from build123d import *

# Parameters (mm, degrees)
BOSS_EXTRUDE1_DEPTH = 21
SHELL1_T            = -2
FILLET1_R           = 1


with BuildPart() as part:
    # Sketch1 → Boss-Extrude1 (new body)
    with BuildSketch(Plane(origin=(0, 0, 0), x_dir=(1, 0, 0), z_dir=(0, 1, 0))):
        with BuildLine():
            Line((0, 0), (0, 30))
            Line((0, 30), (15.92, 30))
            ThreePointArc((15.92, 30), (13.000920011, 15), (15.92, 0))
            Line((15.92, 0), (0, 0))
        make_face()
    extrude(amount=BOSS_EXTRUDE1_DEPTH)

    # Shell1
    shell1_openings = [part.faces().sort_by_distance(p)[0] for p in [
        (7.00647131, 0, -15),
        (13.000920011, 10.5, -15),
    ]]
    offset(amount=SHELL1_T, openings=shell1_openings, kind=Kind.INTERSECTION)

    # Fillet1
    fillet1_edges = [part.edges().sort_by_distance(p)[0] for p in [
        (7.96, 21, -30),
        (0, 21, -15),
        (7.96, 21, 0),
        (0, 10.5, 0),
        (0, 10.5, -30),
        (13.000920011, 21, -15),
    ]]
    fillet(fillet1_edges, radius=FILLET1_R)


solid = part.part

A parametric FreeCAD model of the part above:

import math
import FreeCAD as App
import Part
import Sketcher

V = App.Vector
Q = App.Units.Quantity


def edges_at(feature, points):
    """Names of the edges that pass closest to the given points."""
    edges = feature.Shape.Edges
    near = lambda p: min(range(len(edges)), key=lambda i: edges[i].distToShape(Part.Vertex(*p))[0])
    return sorted({f"Edge{near(p) + 1}" for p in points})


def faces_at(feature, points):
    """Names of the faces that lie closest to the given points."""
    faces = feature.Shape.Faces
    near = lambda p: min(range(len(faces)), key=lambda i: faces[i].distToShape(Part.Vertex(*p))[0])
    return sorted({f"Face{near(p) + 1}" for p in points})

doc = App.newDocument("Part")
params = doc.addObject("Spreadsheet::Sheet", "Params")
for row, (alias, value) in enumerate([
    ("sketch1_height", "30 mm"),
    ("sketch1_width", "15.92 mm"),
    ("pad1_length", "21 mm"),
    ("thickness_wall", "2 mm"),
    ("fillet_radius", "1 mm"),
], start=1):
    params.set(f"A{row}", alias)
    params.set(f"B{row}", "=" + value)
    params.setAlias(f"B{row}", alias)

body = doc.addObject("PartDesign::Body", "Body")

# Sketch on XZ plane
sketch1 = body.newObject("Sketcher::SketchObject", "Sketch")
sketch1.AttachmentSupport = (doc.getObject("XZ_Plane"), [""])
sketch1.MapMode = "FlatFace"
sketch1.addGeometry(Part.LineSegment(V(0, -30, 0), V(0, 0, 0)), False)
sketch1.addGeometry(Part.LineSegment(V(0, 0, 0), V(16, 0, 0)), False)
sketch1.addGeometry(Part.ArcOfCircle(Part.Circle(V(53, -15, 0), V(0, 0, 1), 40), math.radians(158), math.radians(202)), False)
sketch1.addGeometry(Part.LineSegment(V(16, -30, 0), V(0, -30, 0)), False)
sketch1.addConstraint(Sketcher.Constraint("Coincident", 0, 2, 1, 1))
sketch1.addConstraint(Sketcher.Constraint("Coincident", 1, 2, 2, 1))
sketch1.addConstraint(Sketcher.Constraint("Coincident", 2, 2, 3, 1))
sketch1.addConstraint(Sketcher.Constraint("Coincident", 3, 2, 0, 1))
sketch1.addConstraint(Sketcher.Constraint("Vertical", 0))
sketch1.addConstraint(Sketcher.Constraint("Horizontal", 1))
sketch1.addConstraint(Sketcher.Constraint("Horizontal", 3))
sketch1.addConstraint(Sketcher.Constraint("Coincident", 0, 2, -1, 1))
sketch1.addConstraint(Sketcher.Constraint("Vertical", 1, 2, 2, 2))
sketch1.addConstraint(Sketcher.Constraint("DistanceY", 0, 1, 0, 2, Q("30 mm")))
sketch1.addConstraint(Sketcher.Constraint("DistanceX", -1, 1, 2, 3, Q("53 mm")))
sketch1.addConstraint(Sketcher.Constraint("DistanceX", 1, 1, 1, 2, Q("15.92 mm")))
sketch1.setExpression("Constraints[9]", "Params.sketch1_height")
sketch1.setExpression("Constraints[11]", "Params.sketch1_width")
pad1 = body.newObject("PartDesign::Pad", "Pad")
pad1.Profile = sketch1
pad1.setExpression("Length", "Params.pad1_length")
pad1.Reversed = True
doc.recompute()

thickness = body.newObject("PartDesign::Thickness", "Thickness")
thickness.Base = (pad1, faces_at(pad1, [(7.96, 0, -15), (13.001, 10.5, -15)]))
thickness.setExpression("Value", "Params.thickness_wall")
thickness.Reversed = True
thickness.Join = "Intersection"
doc.recompute()

fillet = body.newObject("PartDesign::Fillet", "Fillet")
fillet.Base = (thickness, edges_at(thickness, [
    (7.96, 21, -30),
    (0, 21, -15),
    (7.96, 21, 0),
    (0, 10.5, 0),
    (0, 10.5, -30),
    (13.001, 21, -15),
]))
fillet.setExpression("Radius", "Params.fillet_radius")

doc.recompute()
